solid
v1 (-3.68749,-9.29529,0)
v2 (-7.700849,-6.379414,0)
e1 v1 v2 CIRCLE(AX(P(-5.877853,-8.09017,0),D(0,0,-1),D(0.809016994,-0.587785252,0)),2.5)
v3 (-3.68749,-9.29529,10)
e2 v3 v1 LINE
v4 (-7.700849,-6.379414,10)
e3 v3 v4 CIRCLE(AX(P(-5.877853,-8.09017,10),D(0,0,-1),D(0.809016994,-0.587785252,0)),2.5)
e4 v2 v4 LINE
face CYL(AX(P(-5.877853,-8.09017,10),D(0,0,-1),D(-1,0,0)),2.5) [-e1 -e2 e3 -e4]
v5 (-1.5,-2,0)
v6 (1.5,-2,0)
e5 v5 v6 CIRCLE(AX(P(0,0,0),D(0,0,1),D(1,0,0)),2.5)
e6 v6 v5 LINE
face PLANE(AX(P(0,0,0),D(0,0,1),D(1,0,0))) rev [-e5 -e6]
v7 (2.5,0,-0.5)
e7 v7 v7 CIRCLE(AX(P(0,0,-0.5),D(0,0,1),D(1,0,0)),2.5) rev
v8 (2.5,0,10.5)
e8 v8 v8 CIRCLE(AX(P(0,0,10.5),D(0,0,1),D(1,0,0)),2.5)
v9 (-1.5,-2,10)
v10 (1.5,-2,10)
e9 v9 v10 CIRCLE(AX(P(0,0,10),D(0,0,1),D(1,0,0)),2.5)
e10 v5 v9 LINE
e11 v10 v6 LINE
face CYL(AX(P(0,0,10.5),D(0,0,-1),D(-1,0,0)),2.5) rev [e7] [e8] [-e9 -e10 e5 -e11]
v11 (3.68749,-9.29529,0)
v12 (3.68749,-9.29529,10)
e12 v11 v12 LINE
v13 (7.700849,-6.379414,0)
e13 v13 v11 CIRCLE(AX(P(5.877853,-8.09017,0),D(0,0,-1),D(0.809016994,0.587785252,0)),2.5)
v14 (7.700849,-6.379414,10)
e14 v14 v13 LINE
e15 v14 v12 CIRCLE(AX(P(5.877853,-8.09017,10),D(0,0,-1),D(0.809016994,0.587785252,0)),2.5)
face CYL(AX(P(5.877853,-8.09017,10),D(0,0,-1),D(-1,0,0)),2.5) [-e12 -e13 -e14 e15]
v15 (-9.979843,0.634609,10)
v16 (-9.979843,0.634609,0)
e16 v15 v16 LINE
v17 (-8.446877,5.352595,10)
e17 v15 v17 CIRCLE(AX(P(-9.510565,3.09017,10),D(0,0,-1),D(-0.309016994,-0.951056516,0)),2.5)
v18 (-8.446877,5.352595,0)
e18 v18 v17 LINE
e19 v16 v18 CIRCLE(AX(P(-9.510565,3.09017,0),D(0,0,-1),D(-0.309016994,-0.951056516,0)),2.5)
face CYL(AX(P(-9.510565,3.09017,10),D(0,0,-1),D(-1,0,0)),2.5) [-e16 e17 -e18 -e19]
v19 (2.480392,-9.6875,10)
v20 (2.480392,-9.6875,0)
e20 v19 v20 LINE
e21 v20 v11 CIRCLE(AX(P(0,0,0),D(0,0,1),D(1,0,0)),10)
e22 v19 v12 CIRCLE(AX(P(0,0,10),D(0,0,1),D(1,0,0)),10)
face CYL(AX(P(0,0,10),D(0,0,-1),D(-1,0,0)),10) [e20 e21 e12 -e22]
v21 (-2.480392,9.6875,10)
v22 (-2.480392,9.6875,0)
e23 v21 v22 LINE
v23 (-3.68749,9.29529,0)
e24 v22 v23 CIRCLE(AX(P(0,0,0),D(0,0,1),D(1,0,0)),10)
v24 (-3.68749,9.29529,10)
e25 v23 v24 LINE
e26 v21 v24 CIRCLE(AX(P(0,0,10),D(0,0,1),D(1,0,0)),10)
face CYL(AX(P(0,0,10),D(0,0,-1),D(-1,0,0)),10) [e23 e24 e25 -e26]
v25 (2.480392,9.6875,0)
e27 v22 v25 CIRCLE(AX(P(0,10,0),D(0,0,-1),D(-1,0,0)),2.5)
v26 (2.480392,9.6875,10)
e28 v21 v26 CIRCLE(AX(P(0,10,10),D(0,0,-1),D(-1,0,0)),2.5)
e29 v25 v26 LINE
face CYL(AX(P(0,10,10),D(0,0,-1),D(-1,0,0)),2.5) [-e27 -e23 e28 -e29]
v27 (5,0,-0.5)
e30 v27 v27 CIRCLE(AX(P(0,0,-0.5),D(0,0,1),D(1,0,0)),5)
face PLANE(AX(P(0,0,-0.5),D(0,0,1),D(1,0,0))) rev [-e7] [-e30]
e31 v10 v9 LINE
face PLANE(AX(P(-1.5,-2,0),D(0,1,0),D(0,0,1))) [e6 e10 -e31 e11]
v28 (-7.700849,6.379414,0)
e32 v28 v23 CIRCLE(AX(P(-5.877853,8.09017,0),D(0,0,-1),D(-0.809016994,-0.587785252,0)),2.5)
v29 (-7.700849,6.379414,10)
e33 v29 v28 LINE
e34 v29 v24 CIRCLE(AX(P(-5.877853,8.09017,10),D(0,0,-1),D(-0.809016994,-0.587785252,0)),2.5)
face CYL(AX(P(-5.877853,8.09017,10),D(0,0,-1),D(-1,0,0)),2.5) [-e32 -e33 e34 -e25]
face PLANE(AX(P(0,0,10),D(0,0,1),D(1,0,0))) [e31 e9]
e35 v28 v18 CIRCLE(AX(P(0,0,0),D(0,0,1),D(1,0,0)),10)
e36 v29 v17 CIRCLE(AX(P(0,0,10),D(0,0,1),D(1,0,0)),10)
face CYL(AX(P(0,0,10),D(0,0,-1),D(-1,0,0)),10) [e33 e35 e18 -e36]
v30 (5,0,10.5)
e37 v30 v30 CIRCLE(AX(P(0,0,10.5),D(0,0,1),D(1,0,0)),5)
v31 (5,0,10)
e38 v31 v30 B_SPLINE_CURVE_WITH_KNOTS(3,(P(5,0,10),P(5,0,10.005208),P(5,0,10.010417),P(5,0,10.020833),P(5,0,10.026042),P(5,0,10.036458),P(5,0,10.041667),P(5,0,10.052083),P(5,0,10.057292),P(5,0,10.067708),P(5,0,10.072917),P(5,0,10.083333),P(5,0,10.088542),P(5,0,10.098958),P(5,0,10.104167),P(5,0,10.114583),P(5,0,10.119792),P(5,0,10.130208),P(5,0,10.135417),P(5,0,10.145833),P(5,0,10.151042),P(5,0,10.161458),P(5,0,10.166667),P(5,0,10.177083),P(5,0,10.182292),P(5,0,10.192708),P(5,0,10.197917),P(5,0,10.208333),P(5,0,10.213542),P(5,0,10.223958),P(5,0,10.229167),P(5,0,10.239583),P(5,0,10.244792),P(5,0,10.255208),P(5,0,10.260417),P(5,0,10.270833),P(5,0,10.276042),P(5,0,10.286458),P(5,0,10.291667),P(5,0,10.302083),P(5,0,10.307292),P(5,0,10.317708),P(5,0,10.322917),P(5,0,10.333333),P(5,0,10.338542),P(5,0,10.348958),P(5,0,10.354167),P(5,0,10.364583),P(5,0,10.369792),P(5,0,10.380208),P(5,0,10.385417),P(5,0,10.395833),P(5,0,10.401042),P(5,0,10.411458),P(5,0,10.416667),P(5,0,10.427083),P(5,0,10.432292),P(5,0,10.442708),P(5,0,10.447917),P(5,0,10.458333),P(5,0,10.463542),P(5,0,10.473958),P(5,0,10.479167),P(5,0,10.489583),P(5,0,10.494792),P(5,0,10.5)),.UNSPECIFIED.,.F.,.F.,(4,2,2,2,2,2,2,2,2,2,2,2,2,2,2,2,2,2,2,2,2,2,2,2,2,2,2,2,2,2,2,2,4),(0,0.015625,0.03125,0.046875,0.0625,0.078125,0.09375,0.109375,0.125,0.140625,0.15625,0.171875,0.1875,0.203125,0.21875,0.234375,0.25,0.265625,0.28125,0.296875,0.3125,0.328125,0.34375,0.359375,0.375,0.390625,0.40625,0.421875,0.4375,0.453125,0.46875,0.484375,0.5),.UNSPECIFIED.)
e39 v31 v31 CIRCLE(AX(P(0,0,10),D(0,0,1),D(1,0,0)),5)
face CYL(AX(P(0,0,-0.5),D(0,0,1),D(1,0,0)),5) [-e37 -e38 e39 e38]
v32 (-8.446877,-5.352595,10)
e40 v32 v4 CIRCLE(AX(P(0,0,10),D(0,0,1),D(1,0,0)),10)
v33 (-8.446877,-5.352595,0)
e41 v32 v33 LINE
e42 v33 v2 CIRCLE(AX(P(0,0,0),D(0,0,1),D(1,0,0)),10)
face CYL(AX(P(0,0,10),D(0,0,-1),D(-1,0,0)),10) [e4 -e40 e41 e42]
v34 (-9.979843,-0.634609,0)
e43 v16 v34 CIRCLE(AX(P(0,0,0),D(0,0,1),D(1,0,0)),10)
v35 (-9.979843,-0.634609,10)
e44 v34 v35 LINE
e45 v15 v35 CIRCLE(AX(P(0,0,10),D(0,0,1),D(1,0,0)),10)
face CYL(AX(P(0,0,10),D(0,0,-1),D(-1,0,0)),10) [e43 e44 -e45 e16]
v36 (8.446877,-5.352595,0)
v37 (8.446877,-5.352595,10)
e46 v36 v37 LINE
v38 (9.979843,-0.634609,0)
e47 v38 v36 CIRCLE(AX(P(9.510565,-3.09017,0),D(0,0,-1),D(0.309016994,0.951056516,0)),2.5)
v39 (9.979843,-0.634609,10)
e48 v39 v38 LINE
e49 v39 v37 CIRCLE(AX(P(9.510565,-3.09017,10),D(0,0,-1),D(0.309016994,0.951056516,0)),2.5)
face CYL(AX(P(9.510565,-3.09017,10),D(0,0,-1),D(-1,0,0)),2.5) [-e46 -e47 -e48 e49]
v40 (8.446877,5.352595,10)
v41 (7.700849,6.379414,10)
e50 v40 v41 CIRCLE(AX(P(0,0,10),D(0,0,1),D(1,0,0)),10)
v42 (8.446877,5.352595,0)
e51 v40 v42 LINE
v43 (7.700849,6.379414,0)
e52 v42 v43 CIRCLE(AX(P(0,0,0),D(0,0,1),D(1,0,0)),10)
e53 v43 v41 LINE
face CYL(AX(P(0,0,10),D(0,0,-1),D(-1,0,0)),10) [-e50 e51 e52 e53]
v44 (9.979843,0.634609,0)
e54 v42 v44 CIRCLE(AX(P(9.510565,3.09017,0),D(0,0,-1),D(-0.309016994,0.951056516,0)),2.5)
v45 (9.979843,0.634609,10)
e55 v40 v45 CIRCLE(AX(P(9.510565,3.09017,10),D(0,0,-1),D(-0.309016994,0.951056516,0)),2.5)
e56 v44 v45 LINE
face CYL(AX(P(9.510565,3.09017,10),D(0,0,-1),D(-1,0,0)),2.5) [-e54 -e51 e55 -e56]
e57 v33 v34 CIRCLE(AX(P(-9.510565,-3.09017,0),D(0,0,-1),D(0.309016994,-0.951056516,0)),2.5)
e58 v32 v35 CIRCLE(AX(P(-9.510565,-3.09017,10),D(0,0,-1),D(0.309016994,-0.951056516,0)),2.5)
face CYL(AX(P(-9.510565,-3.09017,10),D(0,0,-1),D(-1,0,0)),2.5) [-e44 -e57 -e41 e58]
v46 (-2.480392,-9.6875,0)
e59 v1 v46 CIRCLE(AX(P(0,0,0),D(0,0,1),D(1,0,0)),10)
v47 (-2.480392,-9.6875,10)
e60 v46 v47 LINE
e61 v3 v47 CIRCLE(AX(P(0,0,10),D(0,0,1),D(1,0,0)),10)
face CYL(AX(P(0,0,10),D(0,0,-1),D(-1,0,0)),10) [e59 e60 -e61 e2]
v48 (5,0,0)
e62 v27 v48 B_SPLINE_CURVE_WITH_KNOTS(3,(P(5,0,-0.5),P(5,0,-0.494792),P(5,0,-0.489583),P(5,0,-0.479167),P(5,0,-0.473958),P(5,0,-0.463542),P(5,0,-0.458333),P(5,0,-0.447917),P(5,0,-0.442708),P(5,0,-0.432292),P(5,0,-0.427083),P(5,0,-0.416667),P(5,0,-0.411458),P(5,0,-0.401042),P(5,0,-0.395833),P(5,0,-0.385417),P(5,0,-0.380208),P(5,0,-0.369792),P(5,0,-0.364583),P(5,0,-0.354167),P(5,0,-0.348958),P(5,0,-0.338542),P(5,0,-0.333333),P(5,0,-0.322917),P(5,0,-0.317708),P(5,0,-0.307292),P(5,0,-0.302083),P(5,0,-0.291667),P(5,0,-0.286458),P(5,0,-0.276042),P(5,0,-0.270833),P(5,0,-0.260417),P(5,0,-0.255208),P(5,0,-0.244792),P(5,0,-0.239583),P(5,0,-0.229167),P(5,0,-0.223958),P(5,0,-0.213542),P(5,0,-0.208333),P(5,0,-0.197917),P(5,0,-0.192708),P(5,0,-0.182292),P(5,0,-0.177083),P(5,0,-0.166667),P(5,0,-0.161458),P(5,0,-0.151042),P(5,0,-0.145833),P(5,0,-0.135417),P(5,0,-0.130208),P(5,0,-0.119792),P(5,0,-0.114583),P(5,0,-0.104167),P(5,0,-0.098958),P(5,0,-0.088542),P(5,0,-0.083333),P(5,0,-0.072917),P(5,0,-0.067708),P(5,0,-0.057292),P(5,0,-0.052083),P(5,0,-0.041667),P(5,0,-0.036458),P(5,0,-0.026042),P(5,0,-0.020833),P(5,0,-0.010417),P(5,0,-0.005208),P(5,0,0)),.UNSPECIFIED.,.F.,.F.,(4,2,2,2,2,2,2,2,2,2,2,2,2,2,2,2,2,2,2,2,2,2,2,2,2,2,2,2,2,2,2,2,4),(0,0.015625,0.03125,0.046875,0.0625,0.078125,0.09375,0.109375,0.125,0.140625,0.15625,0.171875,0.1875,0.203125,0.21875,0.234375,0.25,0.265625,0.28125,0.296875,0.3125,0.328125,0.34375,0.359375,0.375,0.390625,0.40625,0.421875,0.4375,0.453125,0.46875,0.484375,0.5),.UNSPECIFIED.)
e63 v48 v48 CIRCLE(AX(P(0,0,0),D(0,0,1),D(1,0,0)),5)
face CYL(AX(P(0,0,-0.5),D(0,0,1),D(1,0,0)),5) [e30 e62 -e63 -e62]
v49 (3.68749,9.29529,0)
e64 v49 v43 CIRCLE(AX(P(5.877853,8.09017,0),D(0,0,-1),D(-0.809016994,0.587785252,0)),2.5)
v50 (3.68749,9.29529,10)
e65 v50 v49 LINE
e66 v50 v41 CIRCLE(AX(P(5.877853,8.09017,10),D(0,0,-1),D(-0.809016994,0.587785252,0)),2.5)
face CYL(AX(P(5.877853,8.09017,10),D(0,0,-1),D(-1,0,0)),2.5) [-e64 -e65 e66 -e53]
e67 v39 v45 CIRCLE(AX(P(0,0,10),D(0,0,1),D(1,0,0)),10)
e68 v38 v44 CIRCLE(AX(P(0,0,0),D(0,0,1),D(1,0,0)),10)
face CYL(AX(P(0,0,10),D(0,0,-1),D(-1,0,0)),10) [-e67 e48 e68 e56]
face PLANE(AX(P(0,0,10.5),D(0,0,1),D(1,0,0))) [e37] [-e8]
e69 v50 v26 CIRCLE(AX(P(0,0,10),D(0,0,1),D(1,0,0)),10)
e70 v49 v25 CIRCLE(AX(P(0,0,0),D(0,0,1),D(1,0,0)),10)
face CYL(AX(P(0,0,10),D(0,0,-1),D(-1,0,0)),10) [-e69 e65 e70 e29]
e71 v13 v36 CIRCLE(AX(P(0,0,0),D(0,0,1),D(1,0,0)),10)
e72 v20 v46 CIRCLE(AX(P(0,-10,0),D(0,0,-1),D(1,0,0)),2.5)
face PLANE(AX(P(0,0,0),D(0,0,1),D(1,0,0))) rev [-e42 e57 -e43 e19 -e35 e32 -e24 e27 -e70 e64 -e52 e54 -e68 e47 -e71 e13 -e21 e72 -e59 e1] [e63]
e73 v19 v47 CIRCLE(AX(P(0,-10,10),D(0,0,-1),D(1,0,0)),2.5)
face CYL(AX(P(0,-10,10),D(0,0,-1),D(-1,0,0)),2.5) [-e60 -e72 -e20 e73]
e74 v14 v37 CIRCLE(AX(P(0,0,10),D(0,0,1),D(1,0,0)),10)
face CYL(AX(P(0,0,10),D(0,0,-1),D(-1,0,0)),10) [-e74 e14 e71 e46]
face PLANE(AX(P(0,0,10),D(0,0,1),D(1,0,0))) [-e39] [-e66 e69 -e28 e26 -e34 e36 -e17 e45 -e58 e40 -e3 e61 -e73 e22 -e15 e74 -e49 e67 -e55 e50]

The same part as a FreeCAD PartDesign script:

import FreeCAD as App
import Part
import Sketcher

V = App.Vector
Q = App.Units.Quantity

doc = App.newDocument("Part")
body = doc.addObject("PartDesign::Body", "Body")

# Sketch on XY plane
sketch1 = body.newObject("Sketcher::SketchObject", "Sketch")
sketch1.AttachmentSupport = (doc.getObject("XY_Plane"), [""])
sketch1.MapMode = "FlatFace"
sketch1.addGeometry(Part.Circle(V(0, 0, 0), V(0, 0, 1), 10), False)
sketch1.addConstraint([
    Sketcher.Constraint("Coincident", 0, 3, -1, 1),
    Sketcher.Constraint("Diameter", 0, Q("20 mm")),
])
pad1 = body.newObject("PartDesign::Pad", "Pad")
pad1.Profile = sketch1
pad1.Length = 10

# Sketch on XY plane
sketch2 = body.newObject("Sketcher::SketchObject", "Sketch001")
sketch2.AttachmentSupport = (doc.getObject("XY_Plane"), [""])
sketch2.MapMode = "FlatFace"
sketch2.AttachmentOffset = App.Placement(V(0, 0, 10), App.Rotation())
sketch2.addGeometry(Part.Circle(V(0, 0, 0), V(0, 0, 1), 5), False)
sketch2.addConstraint([
    Sketcher.Constraint("Coincident", 0, 3, -1, 1),
    Sketcher.Constraint("Diameter", 0, Q("10 mm")),
])
pad2 = body.newObject("PartDesign::Pad", "Pad001")
pad2.Profile = sketch2
pad2.Type = "TwoLengths"
pad2.Length = 0.5
pad2.Length2 = 10.5

# Sketch on XY plane
sketch3 = body.newObject("Sketcher::SketchObject", "Sketch002")
sketch3.AttachmentSupport = (doc.getObject("XY_Plane"), [""])
sketch3.MapMode = "FlatFace"
sketch3.addGeometry(Part.Circle(V(0, 10, 0), V(0, 0, 1), 2.5), False)
sketch3.addConstraint([
    Sketcher.Constraint("PointOnObject", 0, 3, -2),
    Sketcher.Constraint("Diameter", 0, Q("5 mm")),
    Sketcher.Constraint("DistanceY", -1, 1, 0, 3, Q("10 mm")),
])
pad3 = body.newObject("PartDesign::Pad", "Pad002")
pad3.Profile = sketch3
pad3.Length = 10
doc.recompute()

polarpattern = body.newObject("PartDesign::PolarPattern", "PolarPattern")
polarpattern.Originals = [pad3]
polarpattern.Axis = (doc.getObject("Z_Axis"), [""])
polarpattern.Angle = 360
polarpattern.Occurrences = 10
body.Tip = polarpattern

# Sketch on XY plane
sketch4 = body.newObject("Sketcher::SketchObject", "Sketch003")
sketch4.AttachmentSupport = (doc.getObject("XY_Plane"), [""])
sketch4.MapMode = "FlatFace"
sketch4.AttachmentOffset = App.Placement(V(0, 0, 10), App.Rotation())
sketch4.addGeometry(Part.Circle(V(0, 0, 0), V(0, 0, 1), 2.5), False)
sketch4.addConstraint([
    Sketcher.Constraint("Coincident", 0, 3, -1, 1),
    Sketcher.Constraint("Diameter", 0, Q("5 mm")),
])
pocket1 = body.newObject("PartDesign::Pocket", "Pocket")
pocket1.Profile = sketch4
pocket1.Type = "ThroughAll"
pocket1.Midplane = True

# Sketch on XY plane
sketch5 = body.newObject("Sketcher::SketchObject", "Sketch004")
sketch5.AttachmentSupport = (doc.getObject("XY_Plane"), [""])
sketch5.MapMode = "FlatFace"
sketch5.AttachmentOffset = App.Placement(V(0, 0, 10), App.Rotation())
sketch5.addGeometry([
    Part.LineSegment(V(-1.5, -2, 0), V(-1.5, -3.1, 0)),
    Part.LineSegment(V(-1.5, -3.1, 0), V(1.6, -3.1, 0)),
    Part.LineSegment(V(1.6, -3.1, 0), V(1.6, -2, 0)),
    Part.LineSegment(V(1.6, -2, 0), V(-1.5, -2, 0)),
], False)
sketch5.addConstraint([
    Sketcher.Constraint("Coincident", 0, 2, 1, 1),
    Sketcher.Constraint("Coincident", 1, 2, 2, 1),
    Sketcher.Constraint("Coincident", 2, 2, 3, 1),
    Sketcher.Constraint("Coincident", 3, 2, 0, 1),
    Sketcher.Constraint("Vertical", 0),
    Sketcher.Constraint("Horizontal", 1),
    Sketcher.Constraint("Vertical", 2),
    Sketcher.Constraint("Horizontal", 3),
    Sketcher.Constraint("DistanceY", 2, 2, -1, 1, Q("2 mm")),
    Sketcher.Constraint("DistanceX", 0, 2, -1, 1, Q("1.5 mm")),
    Sketcher.Constraint("DistanceX", 1, 1, 1, 2, Q("3.121684 mm")),
    Sketcher.Constraint("DistanceY", 0, 2, 0, 1, Q("1.135728 mm")),
])
pad4 = body.newObject("PartDesign::Pad", "Pad003")
pad4.Profile = sketch5
pad4.Length = 10
pad4.Reversed = True

doc.recompute()
